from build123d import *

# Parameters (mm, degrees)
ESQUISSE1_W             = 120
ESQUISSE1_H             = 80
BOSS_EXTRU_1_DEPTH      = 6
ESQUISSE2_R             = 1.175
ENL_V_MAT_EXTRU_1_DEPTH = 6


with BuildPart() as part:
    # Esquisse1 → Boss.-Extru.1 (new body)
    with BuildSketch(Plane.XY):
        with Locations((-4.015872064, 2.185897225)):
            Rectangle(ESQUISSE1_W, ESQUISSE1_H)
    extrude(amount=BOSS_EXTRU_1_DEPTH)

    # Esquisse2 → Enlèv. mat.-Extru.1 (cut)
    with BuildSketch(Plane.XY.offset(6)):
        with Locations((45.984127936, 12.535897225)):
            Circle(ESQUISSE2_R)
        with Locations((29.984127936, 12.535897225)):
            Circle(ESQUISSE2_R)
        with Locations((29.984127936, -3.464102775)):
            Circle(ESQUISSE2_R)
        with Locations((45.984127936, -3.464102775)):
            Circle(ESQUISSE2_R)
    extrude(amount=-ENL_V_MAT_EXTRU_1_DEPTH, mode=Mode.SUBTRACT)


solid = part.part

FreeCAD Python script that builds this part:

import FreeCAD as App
import Part
import Sketcher

V = App.Vector
Q = App.Units.Quantity


def add_polygon(sketch, points):
    """Adds a closed chain of lines whose ends are joined by coincident constraints."""
    first, n = sketch.GeometryCount, len(points)
    for a, b in zip(points, points[1:] + points[:1]):
        sketch.addGeometry(Part.LineSegment(App.Vector(*a, 0), App.Vector(*b, 0)), False)
    for i in range(n):
        sketch.addConstraint(Sketcher.Constraint("Coincident", first + i, 2, first + (i + 1) % n, 1))

doc = App.newDocument("Part")
body = doc.addObject("PartDesign::Body", "Body")

sketch1 = doc.addObject("Sketcher::SketchObject", "Sketch")
body.addObject(sketch1)
sketch1.AttachmentSupport = (doc.XY_Plane, [""])
sketch1.MapMode = "FlatFace"
add_polygon(sketch1, [(-64.015872, 42.185897), (-64.015872, -37.814103), (55.984128, -37.814103), (55.984128, 42.185897)])
sketch1.addConstraint([
    Sketcher.Constraint("Vertical", 0),
    Sketcher.Constraint("Horizontal", 1),
    Sketcher.Constraint("Vertical", 2),
    Sketcher.Constraint("Horizontal", 3),
    Sketcher.Constraint("DistanceX", 1, 1, 1, 2, Q("120 mm")),
    Sketcher.Constraint("DistanceY", 0, 2, 0, 1, Q("80 mm")),
    Sketcher.Constraint("DistanceX", 0, 2, -1, 1, Q("64.015872 mm")),
    Sketcher.Constraint("DistanceY", 0, 2, -1, 1, Q("37.814103 mm")),
])
pad1 = doc.addObject("PartDesign::Pad", "Pad")
body.addObject(pad1)
pad1.Profile = sketch1
pad1.Length = 6

sketch2 = doc.addObject("Sketcher::SketchObject", "Sketch001")
body.addObject(sketch2)
sketch2.AttachmentSupport = (doc.XY_Plane, [""])
sketch2.MapMode = "FlatFace"
sketch2.AttachmentOffset = App.Placement(V(0, 0, 6), App.Rotation())
sketch2.addGeometry([
    Part.Circle(V(45.984128, 12.535897, 0), V(0, 0, 1), 1.175),
    Part.Circle(V(29.984128, 12.535897, 0), V(0, 0, 1), 1.175),
    Part.Circle(V(29.984128, -3.464103, 0), V(0, 0, 1), 1.175),
    Part.Circle(V(45.984128, -3.464103, 0), V(0, 0, 1), 1.175),
], False)
sketch2.addConstraint([
    Sketcher.Constraint("Equal", 0, 1),
    Sketcher.Constraint("Equal", 1, 2),
    Sketcher.Constraint("Equal", 2, 3),
    Sketcher.Constraint("Horizontal", 0, 3, 1, 3),
    Sketcher.Constraint("Horizontal", 2, 3, 3, 3),
    Sketcher.Constraint("Vertical", 1, 3, 2, 3),
    Sketcher.Constraint("Vertical", 0, 3, 3, 3),
    Sketcher.Constraint("Diameter", 0, Q("2.35 mm")),
    Sketcher.Constraint("DistanceX", 1, 3, 0, 3, Q("16 mm")),
    Sketcher.Constraint("DistanceY", 2, 3, 1, 3, Q("16 mm")),
    Sketcher.Constraint("DistanceX", -1, 1, 0, 3, Q("45.984128 mm")),
    Sketcher.Constraint("DistanceY", -1, 1, 0, 3, Q("12.535897 mm")),
])
pocket1 = doc.addObject("PartDesign::Pocket", "Pocket")
body.addObject(pocket1)
pocket1.Profile = sketch2
pocket1.Length = 6

doc.recompute()
